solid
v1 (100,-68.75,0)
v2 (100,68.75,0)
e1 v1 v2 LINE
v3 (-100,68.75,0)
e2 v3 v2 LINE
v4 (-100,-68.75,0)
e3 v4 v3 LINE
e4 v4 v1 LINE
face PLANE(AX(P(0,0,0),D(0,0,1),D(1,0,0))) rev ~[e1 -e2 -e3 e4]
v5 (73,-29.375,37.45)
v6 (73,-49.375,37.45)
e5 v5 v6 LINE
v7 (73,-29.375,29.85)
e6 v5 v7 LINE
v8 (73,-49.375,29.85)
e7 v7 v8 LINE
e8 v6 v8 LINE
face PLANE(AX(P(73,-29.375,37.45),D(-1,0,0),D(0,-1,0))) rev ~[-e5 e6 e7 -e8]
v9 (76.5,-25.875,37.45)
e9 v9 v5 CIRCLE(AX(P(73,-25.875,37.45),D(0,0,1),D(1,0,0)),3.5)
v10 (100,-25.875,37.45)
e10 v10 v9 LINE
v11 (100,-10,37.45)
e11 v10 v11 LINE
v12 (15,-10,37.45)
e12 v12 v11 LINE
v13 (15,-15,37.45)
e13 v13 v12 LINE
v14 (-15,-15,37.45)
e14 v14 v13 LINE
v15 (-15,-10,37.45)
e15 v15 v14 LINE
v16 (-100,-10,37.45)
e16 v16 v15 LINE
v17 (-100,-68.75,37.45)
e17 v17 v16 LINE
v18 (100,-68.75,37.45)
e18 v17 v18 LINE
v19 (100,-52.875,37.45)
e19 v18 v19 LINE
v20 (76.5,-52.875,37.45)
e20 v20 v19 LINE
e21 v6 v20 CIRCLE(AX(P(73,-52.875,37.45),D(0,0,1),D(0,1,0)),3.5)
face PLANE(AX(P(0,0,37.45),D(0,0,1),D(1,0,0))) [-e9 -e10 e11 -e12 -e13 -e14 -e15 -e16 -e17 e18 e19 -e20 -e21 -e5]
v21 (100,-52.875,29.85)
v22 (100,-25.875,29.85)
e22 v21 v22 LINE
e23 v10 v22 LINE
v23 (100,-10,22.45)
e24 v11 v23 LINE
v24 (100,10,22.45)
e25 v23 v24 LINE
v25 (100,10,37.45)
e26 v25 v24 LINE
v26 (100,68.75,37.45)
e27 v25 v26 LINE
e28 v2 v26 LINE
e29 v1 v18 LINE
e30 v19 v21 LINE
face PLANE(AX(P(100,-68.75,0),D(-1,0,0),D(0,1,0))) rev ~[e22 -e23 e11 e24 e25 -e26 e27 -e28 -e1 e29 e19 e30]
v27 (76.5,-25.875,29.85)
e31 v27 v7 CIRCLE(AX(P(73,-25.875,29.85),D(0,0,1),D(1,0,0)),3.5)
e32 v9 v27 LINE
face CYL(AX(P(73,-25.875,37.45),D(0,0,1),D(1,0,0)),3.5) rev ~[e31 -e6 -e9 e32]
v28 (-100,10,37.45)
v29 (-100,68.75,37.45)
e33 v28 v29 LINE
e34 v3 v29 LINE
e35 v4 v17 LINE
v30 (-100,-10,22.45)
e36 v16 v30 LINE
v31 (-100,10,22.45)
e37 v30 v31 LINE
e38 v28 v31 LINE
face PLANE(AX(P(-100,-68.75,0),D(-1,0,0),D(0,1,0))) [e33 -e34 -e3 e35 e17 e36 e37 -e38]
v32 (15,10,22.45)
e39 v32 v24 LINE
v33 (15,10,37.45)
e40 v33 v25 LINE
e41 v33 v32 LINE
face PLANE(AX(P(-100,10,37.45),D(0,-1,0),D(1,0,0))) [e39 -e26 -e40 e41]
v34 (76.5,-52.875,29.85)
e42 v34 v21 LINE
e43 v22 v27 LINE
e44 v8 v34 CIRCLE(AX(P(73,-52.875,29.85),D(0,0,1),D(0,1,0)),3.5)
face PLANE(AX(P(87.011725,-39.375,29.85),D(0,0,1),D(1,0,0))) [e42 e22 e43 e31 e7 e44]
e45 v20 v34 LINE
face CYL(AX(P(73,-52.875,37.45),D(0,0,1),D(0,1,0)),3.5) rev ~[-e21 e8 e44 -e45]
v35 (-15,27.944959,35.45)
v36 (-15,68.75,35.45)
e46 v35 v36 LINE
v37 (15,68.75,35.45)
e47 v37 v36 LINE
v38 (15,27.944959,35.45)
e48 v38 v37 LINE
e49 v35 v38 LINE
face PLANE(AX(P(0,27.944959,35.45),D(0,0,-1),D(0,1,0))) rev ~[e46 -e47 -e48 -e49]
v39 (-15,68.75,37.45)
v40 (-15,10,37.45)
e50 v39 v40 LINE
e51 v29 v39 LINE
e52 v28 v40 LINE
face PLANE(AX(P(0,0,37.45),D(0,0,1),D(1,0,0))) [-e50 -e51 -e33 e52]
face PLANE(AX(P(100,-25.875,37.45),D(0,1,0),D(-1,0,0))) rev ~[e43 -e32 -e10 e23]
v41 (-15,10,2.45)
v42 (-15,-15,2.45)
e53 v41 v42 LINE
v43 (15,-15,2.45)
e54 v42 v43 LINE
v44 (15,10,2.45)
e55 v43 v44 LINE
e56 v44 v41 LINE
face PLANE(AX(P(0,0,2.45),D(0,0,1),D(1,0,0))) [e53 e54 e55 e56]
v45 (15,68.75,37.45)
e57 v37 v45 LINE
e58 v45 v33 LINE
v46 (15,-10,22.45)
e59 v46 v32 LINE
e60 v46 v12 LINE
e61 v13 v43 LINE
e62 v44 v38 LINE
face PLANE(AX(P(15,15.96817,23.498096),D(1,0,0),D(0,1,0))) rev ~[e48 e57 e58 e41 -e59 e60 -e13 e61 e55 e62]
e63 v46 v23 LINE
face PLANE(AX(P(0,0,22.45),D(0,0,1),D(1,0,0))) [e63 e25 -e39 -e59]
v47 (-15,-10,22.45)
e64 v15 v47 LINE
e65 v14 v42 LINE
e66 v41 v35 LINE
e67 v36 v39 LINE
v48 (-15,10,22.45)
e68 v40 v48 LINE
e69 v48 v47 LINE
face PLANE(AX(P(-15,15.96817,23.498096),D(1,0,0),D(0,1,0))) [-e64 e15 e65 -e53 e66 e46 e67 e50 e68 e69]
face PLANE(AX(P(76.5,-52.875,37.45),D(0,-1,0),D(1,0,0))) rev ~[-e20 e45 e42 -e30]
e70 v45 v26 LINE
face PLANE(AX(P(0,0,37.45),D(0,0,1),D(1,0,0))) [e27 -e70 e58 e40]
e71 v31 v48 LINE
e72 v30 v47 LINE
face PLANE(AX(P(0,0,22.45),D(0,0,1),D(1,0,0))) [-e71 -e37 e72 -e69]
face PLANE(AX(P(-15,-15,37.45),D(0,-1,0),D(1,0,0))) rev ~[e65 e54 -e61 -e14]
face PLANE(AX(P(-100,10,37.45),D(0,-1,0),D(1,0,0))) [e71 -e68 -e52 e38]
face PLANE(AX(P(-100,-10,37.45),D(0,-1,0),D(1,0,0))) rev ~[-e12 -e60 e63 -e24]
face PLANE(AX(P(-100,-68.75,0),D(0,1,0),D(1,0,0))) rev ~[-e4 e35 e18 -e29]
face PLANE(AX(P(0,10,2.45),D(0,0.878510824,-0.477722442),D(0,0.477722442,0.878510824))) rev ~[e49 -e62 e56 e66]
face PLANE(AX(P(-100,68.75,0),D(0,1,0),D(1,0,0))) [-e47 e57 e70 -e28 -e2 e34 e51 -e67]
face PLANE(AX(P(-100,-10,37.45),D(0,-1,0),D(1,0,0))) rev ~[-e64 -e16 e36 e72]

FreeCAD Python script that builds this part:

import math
import FreeCAD as App
import Part
import Sketcher

V = App.Vector
Q = App.Units.Quantity


def add_polygon(sketch, points):
    """Adds a closed chain of lines whose ends are joined by coincident constraints."""
    first, n = sketch.GeometryCount, len(points)
    for a, b in zip(points, points[1:] + points[:1]):
        sketch.addGeometry(Part.LineSegment(App.Vector(*a, 0), App.Vector(*b, 0)), False)
    for i in range(n):
        sketch.addConstraint(Sketcher.Constraint("Coincident", first + i, 2, first + (i + 1) % n, 1))

doc = App.newDocument("Part")
body = doc.addObject("PartDesign::Body", "Body")

# Sketch on XY plane
sketch1 = body.newObject("Sketcher::SketchObject", "Sketch")
sketch1.AttachmentSupport = (doc.getObject("XY_Plane"), [""])
sketch1.MapMode = "FlatFace"
add_polygon(sketch1, [(-100, 69), (-100, -69), (100, -69), (100, 69)])  # lines 0-3
sketch1.addConstraint([
    Sketcher.Constraint("Vertical", 0),
    Sketcher.Constraint("Horizontal", 1),
    Sketcher.Constraint("Vertical", 2),
    Sketcher.Constraint("Horizontal", 3),
    Sketcher.Constraint("Symmetric", 0, 2, 2, 2, -1, 1),
    Sketcher.Constraint("DistanceX", 1, 1, 1, 2, Q("200 mm")),
    Sketcher.Constraint("DistanceY", 0, 2, 0, 1, Q("137.5 mm")),
])
pad1 = body.newObject("PartDesign::Pad", "Pad")
pad1.Profile = sketch1
pad1.Length = 37.45

# Sketch on XY plane
sketch2 = body.newObject("Sketcher::SketchObject", "Sketch001")
sketch2.AttachmentSupport = (doc.getObject("XY_Plane"), [""])
sketch2.MapMode = "FlatFace"
sketch2.AttachmentOffset = App.Placement(V(0, 0, 37.45), App.Rotation())
add_polygon(sketch2, [(-100, 10), (-100, -10), (100, -10), (100, 10)])  # lines 0-3
sketch2.addConstraint([
    Sketcher.Constraint("Vertical", 0),
    Sketcher.Constraint("Horizontal", 1),
    Sketcher.Constraint("Vertical", 2),
    Sketcher.Constraint("Horizontal", 3),
    Sketcher.Constraint("Symmetric", 0, 2, 2, 2, -1, 1),
    Sketcher.Constraint("DistanceX", 1, 1, 1, 2, Q("200 mm")),
    Sketcher.Constraint("DistanceY", 0, 2, 0, 1, Q("20 mm")),
])
pocket1 = body.newObject("PartDesign::Pocket", "Pocket")
pocket1.Profile = sketch2
pocket1.Length = 15

# Sketch on XY plane
sketch3 = body.newObject("Sketcher::SketchObject", "Sketch002")
sketch3.AttachmentSupport = (doc.getObject("XY_Plane"), [""])
sketch3.MapMode = "FlatFace"
sketch3.AttachmentOffset = App.Placement(V(0, 0, 37.45), App.Rotation())
add_polygon(sketch3, [(-15, 10), (-15, -15), (15, -15), (15, 10)])  # lines 0-3
sketch3.addConstraint([
    Sketcher.Constraint("Vertical", 0),
    Sketcher.Constraint("Horizontal", 1),
    Sketcher.Constraint("Vertical", 2),
    Sketcher.Constraint("Horizontal", 3),
    Sketcher.Constraint("DistanceX", 1, 1, 1, 2, Q("30 mm")),
    Sketcher.Constraint("DistanceY", 0, 2, 0, 1, Q("25 mm")),
    Sketcher.Constraint("DistanceX", 0, 2, -1, 1, Q("15 mm")),
    Sketcher.Constraint("DistanceY", 0, 2, -1, 1, Q("15 mm")),
])
pocket2 = body.newObject("PartDesign::Pocket", "Pocket001")
pocket2.Profile = sketch3
pocket2.Length = 35

# Sketch on YZ plane
sketch4 = body.newObject("Sketcher::SketchObject", "Sketch003")
sketch4.AttachmentSupport = (doc.getObject("YZ_Plane"), [""])
sketch4.MapMode = "FlatFace"
add_polygon(sketch4, [(10, 37.5), (10, 2.5), (27.9, 35.5), (68.8, 35.5), (68.8, 37.5)])  # lines 0-4
sketch4.addConstraint([
    Sketcher.Constraint("Vertical", 0),
    Sketcher.Constraint("Horizontal", 2),
    Sketcher.Constraint("Vertical", 3),
    Sketcher.Constraint("Horizontal", 4),
    Sketcher.Constraint("DistanceY", 0, 2, 0, 1, Q("35 mm")),
    Sketcher.Constraint("DistanceY", 3, 1, 3, 2, Q("2 mm")),
    Sketcher.Constraint("DistanceX", -1, 1, 0, 2, Q("10 mm")),
    Sketcher.Constraint("DistanceX", 4, 2, 4, 1, Q("58.75 mm")),
    Sketcher.Constraint("DistanceY", -1, 1, 0, 2, Q("2.45 mm")),
    Sketcher.Constraint("DistanceX", 2, 1, 2, 2, Q("40.805041 mm")),
])
pocket3 = body.newObject("PartDesign::Pocket", "Pocket002")
pocket3.Profile = sketch4
pocket3.Length = 30
pocket3.Midplane = True

# Sketch on XY plane
sketch5 = body.newObject("Sketcher::SketchObject", "Sketch004")
sketch5.AttachmentSupport = (doc.getObject("XY_Plane"), [""])
sketch5.MapMode = "FlatFace"
sketch5.AttachmentOffset = App.Placement(V(0, 0, 37.45), App.Rotation())
sketch5.addGeometry([
    Part.LineSegment(V(76.5, -52.9, 0), V(100, -52.9, 0)),  # 0
    Part.LineSegment(V(100, -52.9, 0), V(100, -25.9, 0)),  # 1
    Part.LineSegment(V(100, -25.9, 0), V(76.5, -25.9, 0)),  # 2
    Part.ArcOfCircle(Part.Circle(V(73, -25.9, 0), V(0, 0, 1), 3.5), math.radians(0), math.radians(270)),  # 3
    Part.LineSegment(V(73, -29.4, 0), V(73, -49.4, 0)),  # 4
    Part.ArcOfCircle(Part.Circle(V(73, -52.9, 0), V(0, 0, 1), 3.5), math.radians(90), math.radians(360)),  # 5
], False)
sketch5.addConstraint([
    Sketcher.Constraint("Coincident", 0, 2, 1, 1),
    Sketcher.Constraint("Coincident", 1, 2, 2, 1),
    Sketcher.Constraint("Coincident", 2, 2, 3, 1),
    Sketcher.Constraint("Coincident", 3, 2, 4, 1),
    Sketcher.Constraint("Coincident", 4, 2, 5, 1),
    Sketcher.Constraint("Coincident", 5, 2, 0, 1),
    Sketcher.Constraint("Horizontal", 0),
    Sketcher.Constraint("Vertical", 1),
    Sketcher.Constraint("Horizontal", 2),
    Sketcher.Constraint("Vertical", 4),
    Sketcher.Constraint("Equal", 3, 5),
    Sketcher.Constraint("Horizontal", 5, 3, 0, 2),
    Sketcher.Constraint("Horizontal", 3, 3, 1, 2),
    Sketcher.Constraint("Vertical", 3, 3, 5, 3),
    Sketcher.Constraint("Vertical", 5, 3, 3, 2),
    Sketcher.Constraint("Radius", 3, Q("3.5 mm")),
    Sketcher.Constraint("DistanceY", 1, 1, 1, 2, Q("27 mm")),
    Sketcher.Constraint("DistanceX", 0, 1, 0, 2, Q("23.5 mm")),
    Sketcher.Constraint("DistanceX", -1, 1, 3, 3, Q("73 mm")),
    Sketcher.Constraint("DistanceY", 3, 3, -1, 1, Q("25.875 mm")),
])
pocket4 = body.newObject("PartDesign::Pocket", "Pocket003")
pocket4.Profile = sketch5
pocket4.Length = 7.6

doc.recompute()
